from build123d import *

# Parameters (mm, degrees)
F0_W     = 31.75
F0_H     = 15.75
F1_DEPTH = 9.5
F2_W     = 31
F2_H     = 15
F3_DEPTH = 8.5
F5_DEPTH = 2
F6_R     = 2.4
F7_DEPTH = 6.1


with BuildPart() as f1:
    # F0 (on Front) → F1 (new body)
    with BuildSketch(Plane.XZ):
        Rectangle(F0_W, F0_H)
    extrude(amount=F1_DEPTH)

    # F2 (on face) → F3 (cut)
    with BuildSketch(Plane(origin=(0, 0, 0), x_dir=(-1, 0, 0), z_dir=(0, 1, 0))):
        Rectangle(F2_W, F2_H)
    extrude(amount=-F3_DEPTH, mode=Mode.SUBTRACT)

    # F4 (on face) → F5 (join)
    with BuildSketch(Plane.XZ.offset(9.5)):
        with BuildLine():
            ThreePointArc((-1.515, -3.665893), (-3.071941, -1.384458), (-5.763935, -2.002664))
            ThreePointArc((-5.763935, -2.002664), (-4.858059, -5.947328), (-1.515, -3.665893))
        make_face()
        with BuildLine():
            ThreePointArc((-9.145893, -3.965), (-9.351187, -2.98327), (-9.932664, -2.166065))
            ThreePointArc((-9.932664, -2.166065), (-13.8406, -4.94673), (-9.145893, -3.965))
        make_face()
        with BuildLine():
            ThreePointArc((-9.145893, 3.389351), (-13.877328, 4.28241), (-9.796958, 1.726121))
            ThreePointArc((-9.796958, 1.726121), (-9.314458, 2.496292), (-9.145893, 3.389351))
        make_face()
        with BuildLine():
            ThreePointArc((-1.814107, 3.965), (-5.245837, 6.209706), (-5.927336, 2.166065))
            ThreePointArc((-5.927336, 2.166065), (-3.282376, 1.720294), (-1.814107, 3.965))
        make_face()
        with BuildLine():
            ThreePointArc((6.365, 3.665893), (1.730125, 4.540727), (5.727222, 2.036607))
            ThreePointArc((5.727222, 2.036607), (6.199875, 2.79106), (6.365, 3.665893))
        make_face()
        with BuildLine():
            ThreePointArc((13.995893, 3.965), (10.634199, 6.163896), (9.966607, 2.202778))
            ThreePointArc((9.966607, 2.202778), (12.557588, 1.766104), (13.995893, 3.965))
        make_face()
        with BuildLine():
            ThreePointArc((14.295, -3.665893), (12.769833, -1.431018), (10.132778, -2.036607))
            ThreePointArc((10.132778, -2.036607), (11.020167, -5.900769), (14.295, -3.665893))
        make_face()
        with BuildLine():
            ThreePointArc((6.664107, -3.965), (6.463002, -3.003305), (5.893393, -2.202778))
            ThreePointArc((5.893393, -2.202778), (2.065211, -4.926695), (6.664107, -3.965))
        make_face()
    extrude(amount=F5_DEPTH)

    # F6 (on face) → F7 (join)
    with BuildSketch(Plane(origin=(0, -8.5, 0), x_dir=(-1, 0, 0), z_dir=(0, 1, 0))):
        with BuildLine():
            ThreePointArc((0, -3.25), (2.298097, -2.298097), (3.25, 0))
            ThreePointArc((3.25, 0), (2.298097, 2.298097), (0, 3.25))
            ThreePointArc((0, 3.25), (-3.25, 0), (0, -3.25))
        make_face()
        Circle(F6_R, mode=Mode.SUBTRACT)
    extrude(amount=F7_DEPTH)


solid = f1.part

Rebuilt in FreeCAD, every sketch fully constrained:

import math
import FreeCAD as App
import Part
import Sketcher
from FreeCAD import Vector
Q = App.Units.Quantity

doc = App.newDocument("Part")
params = doc.addObject("Spreadsheet::Sheet", "Params")
for row, (alias, value) in enumerate([
    ("sketch1_width", "31.75 mm"),
    ("sketch1_height", "15.75 mm"),
    ("pad1_length", "9.5 mm"),
    ("sketch2_width", "31 mm"),
    ("sketch2_height", "15 mm"),
    ("pocket1_length", "8.5 mm"),
    ("sketch3_radius", "2.4 mm"),
    ("sketch3_radius2", "2.45 mm"),
    ("pad2_length", "2 mm"),
    ("sketch4_diameter", "4.8 mm"),
    ("sketch4_radius", "3.25 mm"),
    ("pad3_length", "6.1 mm"),
], start=1):
    params.set(f"A{row}", alias)
    params.set(f"B{row}", "=" + value)
    params.setAlias(f"B{row}", alias)

body = doc.addObject("PartDesign::Body", "Body")

# Sketch on XZ plane
sketch1 = body.newObject("Sketcher::SketchObject", "Sketch")
sketch1.AttachmentSupport = (doc.getObject("XZ_Plane"), [""])
sketch1.MapMode = "FlatFace"
sketch1.addGeometry([
    Part.LineSegment(Vector(-16, 8, 0), Vector(-16, -8, 0)),
    Part.LineSegment(Vector(-16, -8, 0), Vector(16, -8, 0)),
    Part.LineSegment(Vector(16, -8, 0), Vector(16, 8, 0)),
    Part.LineSegment(Vector(16, 8, 0), Vector(-16, 8, 0)),
], False)
sketch1.addConstraint([
    Sketcher.Constraint("Coincident", 0, 2, 1, 1),
    Sketcher.Constraint("Coincident", 1, 2, 2, 1),
    Sketcher.Constraint("Coincident", 2, 2, 3, 1),
    Sketcher.Constraint("Coincident", 3, 2, 0, 1),
    Sketcher.Constraint("Vertical", 0),
    Sketcher.Constraint("Horizontal", 1),
    Sketcher.Constraint("Vertical", 2),
    Sketcher.Constraint("Horizontal", 3),
    Sketcher.Constraint("Symmetric", 0, 2, 2, 2, -1, 1),
    Sketcher.Constraint("DistanceX", 1, 1, 1, 2, Q("31.75 mm")),
    Sketcher.Constraint("DistanceY", 0, 2, 0, 1, Q("15.75 mm")),
])
sketch1.setExpression("Constraints[9]", "Params.sketch1_width")
sketch1.setExpression("Constraints[10]", "Params.sketch1_height")
pad1 = body.newObject("PartDesign::Pad", "Pad")
pad1.Profile = sketch1
pad1.setExpression("Length", "Params.pad1_length")

# Sketch on XZ plane
sketch2 = body.newObject("Sketcher::SketchObject", "Sketch001")
sketch2.AttachmentSupport = (doc.getObject("XZ_Plane"), [""])
sketch2.MapMode = "FlatFace"
sketch2.addGeometry([
    Part.LineSegment(Vector(16, 8, 0), Vector(16, -8, 0)),
    Part.LineSegment(Vector(16, -8, 0), Vector(-16, -8, 0)),
    Part.LineSegment(Vector(-16, -8, 0), Vector(-16, 8, 0)),
    Part.LineSegment(Vector(-16, 8, 0), Vector(16, 8, 0)),
], False)
sketch2.addConstraint([
    Sketcher.Constraint("Coincident", 0, 2, 1, 1),
    Sketcher.Constraint("Coincident", 1, 2, 2, 1),
    Sketcher.Constraint("Coincident", 2, 2, 3, 1),
    Sketcher.Constraint("Coincident", 3, 2, 0, 1),
    Sketcher.Constraint("Vertical", 0),
    Sketcher.Constraint("Horizontal", 1),
    Sketcher.Constraint("Vertical", 2),
    Sketcher.Constraint("Horizontal", 3),
    Sketcher.Constraint("Symmetric", 0, 2, 2, 2, -1, 1),
    Sketcher.Constraint("DistanceX", 1, 2, 1, 1, Q("31 mm")),
    Sketcher.Constraint("DistanceY", 0, 2, 0, 1, Q("15 mm")),
])
sketch2.setExpression("Constraints[9]", "Params.sketch2_width")
sketch2.setExpression("Constraints[10]", "Params.sketch2_height")
pocket1 = body.newObject("PartDesign::Pocket", "Pocket")
pocket1.Profile = sketch2
pocket1.setExpression("Length", "Params.pocket1_length")
pocket1.Reversed = True

# Sketch on XZ plane
sketch3 = body.newObject("Sketcher::SketchObject", "Sketch002")
sketch3.AttachmentSupport = (doc.getObject("XZ_Plane"), [""])
sketch3.MapMode = "FlatFace"
sketch3.AttachmentOffset = App.Placement(Vector(0, 0, 9.5), App.Rotation())
sketch3.addGeometry([
    Part.ArcOfCircle(Part.Circle(Vector(-4, -3.7, 0), Vector(0, 0, 1), 2.4), math.radians(0), math.radians(137)),  # 0
    Part.ArcOfCircle(Part.Circle(Vector(-4, -3.7, 0), Vector(0, 0, 1), 2.4), math.radians(137), math.radians(360)),  # 1
    Part.ArcOfCircle(Part.Circle(Vector(-11.6, -4, 0), Vector(0, 0, 1), 2.5), math.radians(0), math.radians(47)),  # 2
    Part.ArcOfCircle(Part.Circle(Vector(-11.6, -4, 0), Vector(0, 0, 1), 2.5), math.radians(47), math.radians(360)),  # 3
    Part.ArcOfCircle(Part.Circle(Vector(-11.6, 3.4, 0), Vector(0, 0, 1), 2.5), math.radians(0), math.radians(317)),  # 4
    Part.ArcOfCircle(Part.Circle(Vector(-11.6, 3.4, 0), Vector(0, 0, 1), 2.5), math.radians(-43), math.radians(0)),  # 5
    Part.ArcOfCircle(Part.Circle(Vector(-4.3, 4, 0), Vector(0, 0, 1), 2.4), math.radians(0), math.radians(227)),  # 6
    Part.ArcOfCircle(Part.Circle(Vector(-4.3, 4, 0), Vector(0, 0, 1), 2.4), math.radians(-133), math.radians(0)),  # 7
    Part.ArcOfCircle(Part.Circle(Vector(4, 3.7, 0), Vector(0, 0, 1), 2.4), math.radians(0), math.radians(317)),  # 8
    Part.ArcOfCircle(Part.Circle(Vector(4, 3.7, 0), Vector(0, 0, 1), 2.4), math.radians(-43), math.radians(0)),  # 9
    Part.ArcOfCircle(Part.Circle(Vector(11.6, 4, 0), Vector(0, 0, 1), 2.4), math.radians(0), math.radians(227)),  # 10
    Part.ArcOfCircle(Part.Circle(Vector(11.6, 4, 0), Vector(0, 0, 1), 2.4), math.radians(-133), math.radians(0)),  # 11
    Part.ArcOfCircle(Part.Circle(Vector(11.9, -3.7, 0), Vector(0, 0, 1), 2.4), math.radians(0), math.radians(137)),  # 12
    Part.ArcOfCircle(Part.Circle(Vector(11.9, -3.7, 0), Vector(0, 0, 1), 2.4), math.radians(137), math.radians(360)),  # 13
    Part.ArcOfCircle(Part.Circle(Vector(4.3, -4, 0), Vector(0, 0, 1), 2.4), math.radians(0), math.radians(47)),  # 14
    Part.ArcOfCircle(Part.Circle(Vector(4.3, -4, 0), Vector(0, 0, 1), 2.4), math.radians(47), math.radians(360)),  # 15
], False)
sketch3.addConstraint([
    Sketcher.Constraint("Tangent", 0, 1, 1, 2),
    Sketcher.Constraint("Coincident", 1, 1, 0, 2),
    Sketcher.Constraint("Tangent", 2, 1, 3, 2),
    Sketcher.Constraint("Coincident", 3, 1, 2, 2),
    Sketcher.Constraint("Tangent", 4, 1, 5, 2),
    Sketcher.Constraint("Coincident", 5, 1, 4, 2),
    Sketcher.Constraint("Tangent", 6, 1, 7, 2),
    Sketcher.Constraint("Coincident", 7, 1, 6, 2),
    Sketcher.Constraint("Tangent", 8, 1, 9, 2),
    Sketcher.Constraint("Coincident", 9, 1, 8, 2),
    Sketcher.Constraint("Tangent", 10, 1, 11, 2),
    Sketcher.Constraint("Coincident", 11, 1, 10, 2),
    Sketcher.Constraint("Tangent", 12, 1, 13, 2),
    Sketcher.Constraint("Coincident", 13, 1, 12, 2),
    Sketcher.Constraint("Tangent", 14, 1, 15, 2),
    Sketcher.Constraint("Coincident", 15, 1, 14, 2),
    Sketcher.Constraint("Equal", 1, 2),
    Sketcher.Constraint("Equal", 3, 4),
    Sketcher.Constraint("Equal", 5, 6),
    Sketcher.Constraint("Equal", 9, 10),
    Sketcher.Constraint("Equal", 11, 12),
    Sketcher.Constraint("Equal", 13, 15),
    Sketcher.Constraint("Symmetric", 0, 3, 8, 3, -1, 1),
    Sketcher.Constraint("Symmetric", 2, 3, 10, 3, -1, 1),
    Sketcher.Constraint("Symmetric", 6, 3, 14, 3, -1, 1),
    Sketcher.Constraint("Horizontal", 7, 3, 10, 3),
    Sketcher.Constraint("Horizontal", 1, 3, 12, 3),
    Sketcher.Constraint("Horizontal", 13, 3, 0, 1),
    Sketcher.Constraint("Horizontal", 15, 3, 2, 1),
    Sketcher.Constraint("Horizontal", 5, 3, 4, 1),
    Sketcher.Constraint("Horizontal", 11, 3, 6, 1),
    Sketcher.Constraint("Horizontal", 9, 3, 8, 1),
    Sketcher.Constraint("Horizontal", 6, 1, 10, 1),
    Sketcher.Constraint("Horizontal", 0, 1, 12, 1),
    Sketcher.Constraint("Horizontal", 2, 1, 14, 1),
    Sketcher.Constraint("Vertical", 3, 3, 4, 3),
    Sketcher.Constraint("Radius", 8, Q("2.4 mm")),
    Sketcher.Constraint("Radius", 0, Q("2.45 mm")),
    Sketcher.Constraint("DistanceY", 2, 3, 6, 3, Q("7.930001 mm")),
    Sketcher.Constraint("DistanceX", 0, 3, 8, 3, Q("7.93 mm")),
    Sketcher.Constraint("DistanceX", 7, 3, 10, 3, Q("15.86 mm")),
    Sketcher.Constraint("DistanceX", 8, 3, 12, 3, Q("7.93 mm")),
    Sketcher.Constraint("DistanceX", -1, 1, 14, 3, Q("4.2641 mm")),
    Sketcher.Constraint("DistanceY", 3, 1, 1, 1, Q("0.163401 mm")),
    Sketcher.Constraint("DistanceX", 7, 1, 1, 1, Q("0.163401 mm")),
    Sketcher.Constraint("DistanceY", -1, 1, 4, 3, Q("3.389351 mm")),
    Sketcher.Constraint("DistanceY", -1, 1, 5, 1, Q("1.726121 mm")),
    Sketcher.Constraint("DistanceX", -1, 1, 9, 1, Q("5.727222 mm")),
    Sketcher.Constraint("DistanceX", -1, 1, 13, 1, Q("10.132778 mm")),
    Sketcher.Constraint("DistanceY", 15, 1, -1, 1, Q("2.202778 mm")),
    Sketcher.Constraint("DistanceY", 14, 3, 13, 3, Q("0.29911 mm")),
    Sketcher.Constraint("DistanceY", 0, 3, 1, 1, Q("1.663229 mm")),
    Sketcher.Constraint("DistanceY", 11, 1, 11, 3, Q("1.762222 mm")),
])
sketch3.setExpression("Constraints[36]", "Params.sketch3_radius")
sketch3.setExpression("Constraints[37]", "Params.sketch3_radius2")
pad2 = body.newObject("PartDesign::Pad", "Pad001")
pad2.Profile = sketch3
pad2.setExpression("Length", "Params.pad2_length")

# Sketch on XZ plane
sketch4 = body.newObject("Sketcher::SketchObject", "Sketch003")
sketch4.AttachmentSupport = (doc.getObject("XZ_Plane"), [""])
sketch4.MapMode = "FlatFace"
sketch4.AttachmentOffset = App.Placement(Vector(0, 0, 8.5), App.Rotation())
sketch4.addGeometry([
    Part.ArcOfCircle(Part.Circle(Vector(0, 0, 0), Vector(0, 0, 1), 3.3), math.radians(-180), math.radians(-90)),
    Part.ArcOfCircle(Part.Circle(Vector(0, 0, 0), Vector(0, 0, 1), 3.3), math.radians(90), math.radians(180)),
    Part.ArcOfCircle(Part.Circle(Vector(0, 0, 0), Vector(0, 0, 1), 3.2), math.radians(-90), math.radians(90)),
    Part.Circle(Vector(0, 0, 0), Vector(0, 0, 1), 2.4),
], False)
sketch4.addConstraint([
    Sketcher.Constraint("Tangent", 0, 1, 1, 2),
    Sketcher.Constraint("Tangent", 1, 1, 2, 2),
    Sketcher.Constraint("Tangent", 2, 1, 0, 2),
    Sketcher.Constraint("Coincident", 0, 3, -1, 1),
    Sketcher.Constraint("Coincident", 3, 3, -1, 1),
    Sketcher.Constraint("PointOnObject", 0, 1, -1),
    Sketcher.Constraint("PointOnObject", 1, 1, -2),
    Sketcher.Constraint("PointOnObject", 2, 1, -2),
    Sketcher.Constraint("Diameter", 3, Q("4.8 mm")),
    Sketcher.Constraint("Radius", 0, Q("3.25 mm")),
])
sketch4.setExpression("Constraints[8]", "Params.sketch4_diameter")
sketch4.setExpression("Constraints[9]", "Params.sketch4_radius")
pad3 = body.newObject("PartDesign::Pad", "Pad002")
pad3.Profile = sketch4
pad3.setExpression("Length", "Params.pad3_length")
pad3.Reversed = True

doc.recompute()
